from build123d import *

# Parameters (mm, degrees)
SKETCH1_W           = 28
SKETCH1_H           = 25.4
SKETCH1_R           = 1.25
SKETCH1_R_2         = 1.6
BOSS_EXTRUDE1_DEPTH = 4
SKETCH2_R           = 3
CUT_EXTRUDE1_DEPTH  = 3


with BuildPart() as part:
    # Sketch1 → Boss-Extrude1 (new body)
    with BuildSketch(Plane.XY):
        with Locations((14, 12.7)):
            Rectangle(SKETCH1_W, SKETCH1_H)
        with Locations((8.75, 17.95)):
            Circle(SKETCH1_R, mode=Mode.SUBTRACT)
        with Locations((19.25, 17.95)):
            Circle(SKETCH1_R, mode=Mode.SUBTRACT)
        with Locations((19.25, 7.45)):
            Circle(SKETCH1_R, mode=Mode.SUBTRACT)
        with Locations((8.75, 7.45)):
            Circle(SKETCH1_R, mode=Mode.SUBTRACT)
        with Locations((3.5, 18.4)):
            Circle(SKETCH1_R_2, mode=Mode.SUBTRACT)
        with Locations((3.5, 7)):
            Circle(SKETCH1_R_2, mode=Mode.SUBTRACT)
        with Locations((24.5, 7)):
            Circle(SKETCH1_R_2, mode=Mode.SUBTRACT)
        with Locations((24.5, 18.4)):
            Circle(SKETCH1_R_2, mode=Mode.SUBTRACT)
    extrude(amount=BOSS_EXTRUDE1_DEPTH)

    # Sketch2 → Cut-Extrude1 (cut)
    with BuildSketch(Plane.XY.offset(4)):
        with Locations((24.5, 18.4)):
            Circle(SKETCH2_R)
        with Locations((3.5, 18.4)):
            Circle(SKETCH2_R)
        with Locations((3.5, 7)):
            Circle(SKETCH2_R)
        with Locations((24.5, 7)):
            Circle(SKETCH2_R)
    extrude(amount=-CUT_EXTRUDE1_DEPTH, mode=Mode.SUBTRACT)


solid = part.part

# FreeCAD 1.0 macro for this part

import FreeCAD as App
import Part
import Sketcher

V = App.Vector
Q = App.Units.Quantity


def add_polygon(sketch, points):
    """Adds a closed chain of lines whose ends are joined by coincident constraints."""
    first, n = sketch.GeometryCount, len(points)
    for a, b in zip(points, points[1:] + points[:1]):
        sketch.addGeometry(Part.LineSegment(App.Vector(*a, 0), App.Vector(*b, 0)), False)
    for i in range(n):
        sketch.addConstraint(Sketcher.Constraint("Coincident", first + i, 2, first + (i + 1) % n, 1))

doc = App.newDocument("Part")
body = doc.addObject("PartDesign::Body", "Body")

# Sketch on XY plane
sketch1 = body.newObject("Sketcher::SketchObject", "Sketch")
sketch1.AttachmentSupport = (doc.getObject("XY_Plane"), [""])
sketch1.MapMode = "FlatFace"
add_polygon(sketch1, [(0, 25.4), (0, 0), (28, 0), (28, 25.4)])  # lines 0-3
sketch1.addGeometry(Part.Circle(V(3.5, 7, 0), V(0, 0, 1), 1.6), False)  # 4
sketch1.addGeometry(Part.Circle(V(8.75, 7.45, 0), V(0, 0, 1), 1.25), False)  # 5
sketch1.addGeometry(Part.Circle(V(19.25, 7.45, 0), V(0, 0, 1), 1.25), False)  # 6
sketch1.addGeometry(Part.Circle(V(24.5, 7, 0), V(0, 0, 1), 1.6), False)  # 7
sketch1.addGeometry(Part.Circle(V(3.5, 18.4, 0), V(0, 0, 1), 1.6), False)  # 8
sketch1.addGeometry(Part.Circle(V(8.75, 17.95, 0), V(0, 0, 1), 1.25), False)  # 9
sketch1.addGeometry(Part.Circle(V(19.25, 17.95, 0), V(0, 0, 1), 1.25), False)  # 10
sketch1.addGeometry(Part.Circle(V(24.5, 18.4, 0), V(0, 0, 1), 1.6), False)  # 11
sketch1.addConstraint([
    Sketcher.Constraint("Vertical", 0),
    Sketcher.Constraint("Horizontal", 1),
    Sketcher.Constraint("Vertical", 2),
    Sketcher.Constraint("Horizontal", 3),
    Sketcher.Constraint("Coincident", 0, 2, -1, 1),
    Sketcher.Constraint("Equal", 5, 6),
    Sketcher.Constraint("Equal", 4, 7),
    Sketcher.Constraint("Equal", 7, 8),
    Sketcher.Constraint("Equal", 6, 9),
    Sketcher.Constraint("Equal", 9, 10),
    Sketcher.Constraint("Equal", 8, 11),
    Sketcher.Constraint("Horizontal", 5, 3, 6, 3),
    Sketcher.Constraint("Horizontal", 4, 3, 7, 3),
    Sketcher.Constraint("Horizontal", 9, 3, 10, 3),
    Sketcher.Constraint("Horizontal", 8, 3, 11, 3),
    Sketcher.Constraint("Vertical", 4, 3, 8, 3),
    Sketcher.Constraint("Vertical", 5, 3, 9, 3),
    Sketcher.Constraint("Vertical", 6, 3, 10, 3),
    Sketcher.Constraint("Vertical", 7, 3, 11, 3),
    Sketcher.Constraint("Diameter", 4, Q("3.2 mm")),
    Sketcher.Constraint("Diameter", 5, Q("2.5 mm")),
    Sketcher.Constraint("DistanceX", 1, 1, 1, 2, Q("28 mm")),
    Sketcher.Constraint("DistanceY", 0, 2, 0, 1, Q("25.4 mm")),
    Sketcher.Constraint("DistanceY", -1, 1, 4, 3, Q("7 mm")),
    Sketcher.Constraint("DistanceX", 4, 3, 7, 3, Q("21 mm")),
    Sketcher.Constraint("DistanceY", 11, 3, 2, 2, Q("7 mm")),
    Sketcher.Constraint("DistanceX", -1, 1, 4, 3, Q("3.5 mm")),
    Sketcher.Constraint("DistanceX", 5, 3, 6, 3, Q("10.5 mm")),
    Sketcher.Constraint("DistanceY", 5, 3, 9, 3, Q("10.5 mm")),
    Sketcher.Constraint("DistanceX", -1, 1, 5, 3, Q("8.75 mm")),
    Sketcher.Constraint("DistanceY", -1, 1, 5, 3, Q("7.45 mm")),
])
pad1 = body.newObject("PartDesign::Pad", "Pad")
pad1.Profile = sketch1
pad1.Length = 4

# Sketch on XY plane
sketch2 = body.newObject("Sketcher::SketchObject", "Sketch001")
sketch2.AttachmentSupport = (doc.getObject("XY_Plane"), [""])
sketch2.MapMode = "FlatFace"
sketch2.AttachmentOffset = App.Placement(V(0, 0, 4), App.Rotation())
sketch2.addGeometry([
    Part.Circle(V(24.5, 18.4, 0), V(0, 0, 1), 3),
    Part.Circle(V(3.5, 18.4, 0), V(0, 0, 1), 3),
    Part.Circle(V(3.5, 7, 0), V(0, 0, 1), 3),
    Part.Circle(V(24.5, 7, 0), V(0, 0, 1), 3),
], False)
sketch2.addConstraint([
    Sketcher.Constraint("Equal", 0, 1),
    Sketcher.Constraint("Equal", 1, 2),
    Sketcher.Constraint("Equal", 2, 3),
    Sketcher.Constraint("Horizontal", 0, 3, 1, 3),
    Sketcher.Constraint("Horizontal", 2, 3, 3, 3),
    Sketcher.Constraint("Vertical", 1, 3, 2, 3),
    Sketcher.Constraint("Vertical", 0, 3, 3, 3),
    Sketcher.Constraint("Diameter", 0, Q("6 mm")),
    Sketcher.Constraint("DistanceY", -1, 1, 2, 3, Q("7 mm")),
    Sketcher.Constraint("DistanceX", 1, 3, 0, 3, Q("21 mm")),
    Sketcher.Constraint("DistanceX", -1, 1, 0, 3, Q("24.5 mm")),
    Sketcher.Constraint("DistanceY", -1, 1, 0, 3, Q("18.4 mm")),
])
pocket1 = body.newObject("PartDesign::Pocket", "Pocket")
pocket1.Profile = sketch2
pocket1.Length = 3

doc.recompute()
